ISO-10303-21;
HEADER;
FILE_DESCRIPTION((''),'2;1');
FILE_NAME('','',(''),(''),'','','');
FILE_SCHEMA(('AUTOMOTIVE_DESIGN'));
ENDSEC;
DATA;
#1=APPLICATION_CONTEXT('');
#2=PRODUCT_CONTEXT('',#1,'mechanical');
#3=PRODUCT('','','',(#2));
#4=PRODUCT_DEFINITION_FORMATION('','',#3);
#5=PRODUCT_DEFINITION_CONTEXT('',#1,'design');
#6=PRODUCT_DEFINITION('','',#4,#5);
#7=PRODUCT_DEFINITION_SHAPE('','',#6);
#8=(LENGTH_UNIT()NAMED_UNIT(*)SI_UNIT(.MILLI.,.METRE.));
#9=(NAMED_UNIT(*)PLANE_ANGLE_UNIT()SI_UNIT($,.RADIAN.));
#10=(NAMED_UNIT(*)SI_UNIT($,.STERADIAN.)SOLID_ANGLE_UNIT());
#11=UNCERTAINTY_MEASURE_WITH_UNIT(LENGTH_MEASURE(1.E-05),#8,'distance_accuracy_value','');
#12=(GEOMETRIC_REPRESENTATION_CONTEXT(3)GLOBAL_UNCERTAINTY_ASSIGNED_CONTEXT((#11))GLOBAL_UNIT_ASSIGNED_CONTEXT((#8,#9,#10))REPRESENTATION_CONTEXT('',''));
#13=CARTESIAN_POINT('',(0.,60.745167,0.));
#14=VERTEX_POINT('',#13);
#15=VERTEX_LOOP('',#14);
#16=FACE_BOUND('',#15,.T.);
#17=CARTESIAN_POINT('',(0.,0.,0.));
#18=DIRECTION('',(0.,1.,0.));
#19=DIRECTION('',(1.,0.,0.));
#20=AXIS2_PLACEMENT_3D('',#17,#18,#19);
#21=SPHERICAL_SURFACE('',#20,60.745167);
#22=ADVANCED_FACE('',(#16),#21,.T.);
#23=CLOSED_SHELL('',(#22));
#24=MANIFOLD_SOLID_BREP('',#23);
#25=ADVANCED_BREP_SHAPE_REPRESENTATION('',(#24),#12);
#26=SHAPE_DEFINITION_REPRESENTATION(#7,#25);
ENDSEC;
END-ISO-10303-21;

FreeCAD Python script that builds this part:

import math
import FreeCAD as App
import Part
import Sketcher
from FreeCAD import Vector

doc = App.newDocument("Part")
params = doc.addObject("Spreadsheet::Sheet", "Params")
for row, (alias, value) in enumerate([
    ("revolution_angle", "360 deg"),
], start=1):
    params.set(f"A{row}", alias)
    params.set(f"B{row}", "=" + value)
    params.setAlias(f"B{row}", alias)

body = doc.addObject("PartDesign::Body", "Body")

# Sketch on XY plane
sketch1 = body.newObject("Sketcher::SketchObject", "Sketch")
sketch1.AttachmentSupport = (doc.getObject("XY_Plane"), [""])
sketch1.MapMode = "FlatFace"
sketch1.addGeometry(Part.LineSegment(Vector(0, -61, 0), Vector(0, 61, 0)), False)
sketch1.addGeometry(Part.ArcOfCircle(Part.Circle(Vector(0, 0, 0), Vector(0, 0, 1), 61), math.radians(90), math.radians(270)), False)
sketch1.addConstraint(Sketcher.Constraint("Coincident", 0, 1, 1, 2))
sketch1.addConstraint(Sketcher.Constraint("Coincident", 1, 1, 0, 2))
sketch1.addConstraint(Sketcher.Constraint("Vertical", 0))
sketch1.addConstraint(Sketcher.Constraint("Coincident", 1, 3, -1, 1))
sketch1.addConstraint(Sketcher.Constraint("PointOnObject", 0, 1, -2))
sketch1.addConstraint(Sketcher.Constraint("Radius", 1, 60.745167))
revolution = body.newObject("PartDesign::Revolution", "Revolution")
revolution.Profile = sketch1
revolution.ReferenceAxis = (sketch1, ["V_Axis"])
revolution.setExpression("Angle", "Params.revolution_angle")

doc.recompute()
